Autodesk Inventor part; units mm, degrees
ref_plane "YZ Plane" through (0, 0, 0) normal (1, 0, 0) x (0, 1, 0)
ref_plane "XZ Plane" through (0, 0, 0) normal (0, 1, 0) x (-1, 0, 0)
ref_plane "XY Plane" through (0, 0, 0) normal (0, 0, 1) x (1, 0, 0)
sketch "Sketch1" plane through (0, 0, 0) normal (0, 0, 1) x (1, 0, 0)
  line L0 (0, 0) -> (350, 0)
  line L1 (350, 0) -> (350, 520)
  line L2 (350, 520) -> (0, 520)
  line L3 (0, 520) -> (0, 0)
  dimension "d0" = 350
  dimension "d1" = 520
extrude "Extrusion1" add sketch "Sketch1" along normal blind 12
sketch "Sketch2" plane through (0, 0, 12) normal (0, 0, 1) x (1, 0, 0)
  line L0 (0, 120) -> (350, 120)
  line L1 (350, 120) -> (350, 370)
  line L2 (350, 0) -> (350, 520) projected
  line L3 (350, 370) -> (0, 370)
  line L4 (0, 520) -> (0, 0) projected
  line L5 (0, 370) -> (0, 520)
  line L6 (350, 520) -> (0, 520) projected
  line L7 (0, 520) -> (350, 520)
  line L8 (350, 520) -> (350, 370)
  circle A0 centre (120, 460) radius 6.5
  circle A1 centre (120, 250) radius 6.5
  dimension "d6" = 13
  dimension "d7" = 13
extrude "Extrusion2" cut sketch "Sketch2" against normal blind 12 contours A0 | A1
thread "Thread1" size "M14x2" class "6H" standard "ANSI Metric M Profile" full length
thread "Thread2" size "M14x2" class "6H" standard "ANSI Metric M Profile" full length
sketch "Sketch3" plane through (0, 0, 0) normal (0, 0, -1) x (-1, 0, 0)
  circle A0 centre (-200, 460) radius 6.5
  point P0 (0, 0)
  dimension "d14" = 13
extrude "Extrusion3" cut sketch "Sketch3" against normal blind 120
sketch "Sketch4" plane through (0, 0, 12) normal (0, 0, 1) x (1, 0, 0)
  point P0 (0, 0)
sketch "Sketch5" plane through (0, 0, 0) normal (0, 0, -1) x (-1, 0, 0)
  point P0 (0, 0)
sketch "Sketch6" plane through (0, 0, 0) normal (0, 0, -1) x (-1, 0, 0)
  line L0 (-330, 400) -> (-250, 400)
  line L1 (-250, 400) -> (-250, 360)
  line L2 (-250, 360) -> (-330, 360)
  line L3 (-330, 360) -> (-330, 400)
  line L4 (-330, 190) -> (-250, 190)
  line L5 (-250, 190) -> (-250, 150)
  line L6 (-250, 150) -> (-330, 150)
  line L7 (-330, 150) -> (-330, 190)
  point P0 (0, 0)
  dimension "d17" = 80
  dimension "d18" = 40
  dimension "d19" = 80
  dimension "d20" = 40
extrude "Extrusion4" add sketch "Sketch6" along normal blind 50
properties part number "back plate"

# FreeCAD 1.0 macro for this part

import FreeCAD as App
import Part
import Sketcher

V = App.Vector
Q = App.Units.Quantity


def add_polygon(sketch, points):
    """Adds a closed chain of lines whose ends are joined by coincident constraints."""
    first, n = sketch.GeometryCount, len(points)
    for a, b in zip(points, points[1:] + points[:1]):
        sketch.addGeometry(Part.LineSegment(App.Vector(*a, 0), App.Vector(*b, 0)), False)
    for i in range(n):
        sketch.addConstraint(Sketcher.Constraint("Coincident", first + i, 2, first + (i + 1) % n, 1))

doc = App.newDocument("Part")
params = doc.addObject("Spreadsheet::Sheet", "Params")
for row, (alias, value) in enumerate([
    ("sketch1_width", "350 mm"),
    ("sketch1_height", "520 mm"),
    ("pad1_length", "12 mm"),
    ("sketch2_diameter", "13 mm"),
    ("pocket1_length", "12 mm"),
    ("sketch3_diameter", "13 mm"),
    ("pocket2_length", "120 mm"),
    ("sketch4_width", "80 mm"),
    ("sketch4_height", "40 mm"),
    ("pad2_length", "50 mm"),
], start=1):
    params.set(f"A{row}", alias)
    params.set(f"B{row}", "=" + value)
    params.setAlias(f"B{row}", alias)

body = doc.addObject("PartDesign::Body", "Body")

# Sketch on XY plane
sketch1 = doc.addObject("Sketcher::SketchObject", "Sketch")
body.addObject(sketch1)
sketch1.AttachmentSupport = (doc.XY_Plane, [""])
sketch1.MapMode = "FlatFace"
add_polygon(sketch1, [(0, 520), (0, 0), (350, 0), (350, 520)])  # lines 0-3
sketch1.addConstraint(Sketcher.Constraint("Vertical", 0))
sketch1.addConstraint(Sketcher.Constraint("Horizontal", 1))
sketch1.addConstraint(Sketcher.Constraint("Vertical", 2))
sketch1.addConstraint(Sketcher.Constraint("Horizontal", 3))
sketch1.addConstraint(Sketcher.Constraint("Coincident", 0, 2, -1, 1))
sketch1.addConstraint(Sketcher.Constraint("DistanceX", 1, 1, 1, 2, Q("350 mm")))
sketch1.addConstraint(Sketcher.Constraint("DistanceY", 0, 2, 0, 1, Q("520 mm")))
sketch1.setExpression("Constraints[9]", "Params.sketch1_width")
sketch1.setExpression("Constraints[10]", "Params.sketch1_height")
pad1 = doc.addObject("PartDesign::Pad", "Pad")
body.addObject(pad1)
pad1.Profile = sketch1
pad1.setExpression("Length", "Params.pad1_length")

# Sketch on XY plane
sketch2 = doc.addObject("Sketcher::SketchObject", "Sketch001")
body.addObject(sketch2)
sketch2.AttachmentSupport = (doc.XY_Plane, [""])
sketch2.MapMode = "FlatFace"
sketch2.AttachmentOffset = App.Placement(V(0, 0, 12), App.Rotation())
sketch2.addGeometry(Part.Circle(V(120, 460, 0), V(0, 0, 1), 6), False)
sketch2.addGeometry(Part.Circle(V(120, 250, 0), V(0, 0, 1), 6), False)
sketch2.addConstraint(Sketcher.Constraint("Equal", 0, 1))
sketch2.addConstraint(Sketcher.Constraint("Vertical", 0, 3, 1, 3))
sketch2.addConstraint(Sketcher.Constraint("Diameter", 0, Q("13 mm")))
sketch2.addConstraint(Sketcher.Constraint("DistanceX", -1, 1, 0, 3, Q("120 mm")))
sketch2.addConstraint(Sketcher.Constraint("DistanceY", -1, 1, 0, 3, Q("460 mm")))
sketch2.addConstraint(Sketcher.Constraint("DistanceY", -1, 1, 1, 3, Q("250 mm")))
sketch2.setExpression("Constraints[2]", "Params.sketch2_diameter")
pocket1 = doc.addObject("PartDesign::Pocket", "Pocket")
body.addObject(pocket1)
pocket1.Profile = sketch2
pocket1.setExpression("Length", "Params.pocket1_length")

# Sketch on XY plane
sketch3 = doc.addObject("Sketcher::SketchObject", "Sketch002")
body.addObject(sketch3)
sketch3.AttachmentSupport = (doc.XY_Plane, [""])
sketch3.MapMode = "FlatFace"
sketch3.addGeometry(Part.Circle(V(200, 460, 0), V(0, 0, 1), 6), False)
sketch3.addConstraint(Sketcher.Constraint("Diameter", 0, Q("13 mm")))
sketch3.addConstraint(Sketcher.Constraint("DistanceX", -1, 1, 0, 3, Q("200 mm")))
sketch3.addConstraint(Sketcher.Constraint("DistanceY", -1, 1, 0, 3, Q("460 mm")))
sketch3.setExpression("Constraints[0]", "Params.sketch3_diameter")
pocket2 = doc.addObject("PartDesign::Pocket", "Pocket001")
body.addObject(pocket2)
pocket2.Profile = sketch3
pocket2.setExpression("Length", "Params.pocket2_length")
pocket2.Reversed = True

# Sketch on XY plane
sketch4 = doc.addObject("Sketcher::SketchObject", "Sketch003")
body.addObject(sketch4)
sketch4.AttachmentSupport = (doc.XY_Plane, [""])
sketch4.MapMode = "FlatFace"
add_polygon(sketch4, [(250, 400), (330, 400), (330, 360), (250, 360)])  # lines 0-3
add_polygon(sketch4, [(250, 190), (330, 190), (330, 150), (250, 150)])  # lines 4-7
sketch4.addConstraint(Sketcher.Constraint("Horizontal", 0))
sketch4.addConstraint(Sketcher.Constraint("Vertical", 1))
sketch4.addConstraint(Sketcher.Constraint("Horizontal", 2))
sketch4.addConstraint(Sketcher.Constraint("Vertical", 3))
sketch4.addConstraint(Sketcher.Constraint("Horizontal", 4))
sketch4.addConstraint(Sketcher.Constraint("Vertical", 5))
sketch4.addConstraint(Sketcher.Constraint("Horizontal", 6))
sketch4.addConstraint(Sketcher.Constraint("Vertical", 7))
sketch4.addConstraint(Sketcher.Constraint("Vertical", 1, 2, 4, 2))
sketch4.addConstraint(Sketcher.Constraint("Vertical", 3, 2, 6, 2))
sketch4.addConstraint(Sketcher.Constraint("Equal", 3, 5))
sketch4.addConstraint(Sketcher.Constraint("DistanceX", 0, 1, 0, 2, Q("80 mm")))
sketch4.addConstraint(Sketcher.Constraint("DistanceY", 1, 2, 1, 1, Q("40 mm")))
sketch4.addConstraint(Sketcher.Constraint("DistanceX", -1, 1, 0, 2, Q("330 mm")))
sketch4.addConstraint(Sketcher.Constraint("DistanceY", -1, 1, 0, 2, Q("400 mm")))
sketch4.addConstraint(Sketcher.Constraint("DistanceY", -1, 1, 4, 2, Q("190 mm")))
sketch4.setExpression("Constraints[19]", "Params.sketch4_width")
sketch4.setExpression("Constraints[20]", "Params.sketch4_height")
pad2 = doc.addObject("PartDesign::Pad", "Pad001")
body.addObject(pad2)
pad2.Profile = sketch4
pad2.setExpression("Length", "Params.pad2_length")
pad2.Reversed = True

doc.recompute()
